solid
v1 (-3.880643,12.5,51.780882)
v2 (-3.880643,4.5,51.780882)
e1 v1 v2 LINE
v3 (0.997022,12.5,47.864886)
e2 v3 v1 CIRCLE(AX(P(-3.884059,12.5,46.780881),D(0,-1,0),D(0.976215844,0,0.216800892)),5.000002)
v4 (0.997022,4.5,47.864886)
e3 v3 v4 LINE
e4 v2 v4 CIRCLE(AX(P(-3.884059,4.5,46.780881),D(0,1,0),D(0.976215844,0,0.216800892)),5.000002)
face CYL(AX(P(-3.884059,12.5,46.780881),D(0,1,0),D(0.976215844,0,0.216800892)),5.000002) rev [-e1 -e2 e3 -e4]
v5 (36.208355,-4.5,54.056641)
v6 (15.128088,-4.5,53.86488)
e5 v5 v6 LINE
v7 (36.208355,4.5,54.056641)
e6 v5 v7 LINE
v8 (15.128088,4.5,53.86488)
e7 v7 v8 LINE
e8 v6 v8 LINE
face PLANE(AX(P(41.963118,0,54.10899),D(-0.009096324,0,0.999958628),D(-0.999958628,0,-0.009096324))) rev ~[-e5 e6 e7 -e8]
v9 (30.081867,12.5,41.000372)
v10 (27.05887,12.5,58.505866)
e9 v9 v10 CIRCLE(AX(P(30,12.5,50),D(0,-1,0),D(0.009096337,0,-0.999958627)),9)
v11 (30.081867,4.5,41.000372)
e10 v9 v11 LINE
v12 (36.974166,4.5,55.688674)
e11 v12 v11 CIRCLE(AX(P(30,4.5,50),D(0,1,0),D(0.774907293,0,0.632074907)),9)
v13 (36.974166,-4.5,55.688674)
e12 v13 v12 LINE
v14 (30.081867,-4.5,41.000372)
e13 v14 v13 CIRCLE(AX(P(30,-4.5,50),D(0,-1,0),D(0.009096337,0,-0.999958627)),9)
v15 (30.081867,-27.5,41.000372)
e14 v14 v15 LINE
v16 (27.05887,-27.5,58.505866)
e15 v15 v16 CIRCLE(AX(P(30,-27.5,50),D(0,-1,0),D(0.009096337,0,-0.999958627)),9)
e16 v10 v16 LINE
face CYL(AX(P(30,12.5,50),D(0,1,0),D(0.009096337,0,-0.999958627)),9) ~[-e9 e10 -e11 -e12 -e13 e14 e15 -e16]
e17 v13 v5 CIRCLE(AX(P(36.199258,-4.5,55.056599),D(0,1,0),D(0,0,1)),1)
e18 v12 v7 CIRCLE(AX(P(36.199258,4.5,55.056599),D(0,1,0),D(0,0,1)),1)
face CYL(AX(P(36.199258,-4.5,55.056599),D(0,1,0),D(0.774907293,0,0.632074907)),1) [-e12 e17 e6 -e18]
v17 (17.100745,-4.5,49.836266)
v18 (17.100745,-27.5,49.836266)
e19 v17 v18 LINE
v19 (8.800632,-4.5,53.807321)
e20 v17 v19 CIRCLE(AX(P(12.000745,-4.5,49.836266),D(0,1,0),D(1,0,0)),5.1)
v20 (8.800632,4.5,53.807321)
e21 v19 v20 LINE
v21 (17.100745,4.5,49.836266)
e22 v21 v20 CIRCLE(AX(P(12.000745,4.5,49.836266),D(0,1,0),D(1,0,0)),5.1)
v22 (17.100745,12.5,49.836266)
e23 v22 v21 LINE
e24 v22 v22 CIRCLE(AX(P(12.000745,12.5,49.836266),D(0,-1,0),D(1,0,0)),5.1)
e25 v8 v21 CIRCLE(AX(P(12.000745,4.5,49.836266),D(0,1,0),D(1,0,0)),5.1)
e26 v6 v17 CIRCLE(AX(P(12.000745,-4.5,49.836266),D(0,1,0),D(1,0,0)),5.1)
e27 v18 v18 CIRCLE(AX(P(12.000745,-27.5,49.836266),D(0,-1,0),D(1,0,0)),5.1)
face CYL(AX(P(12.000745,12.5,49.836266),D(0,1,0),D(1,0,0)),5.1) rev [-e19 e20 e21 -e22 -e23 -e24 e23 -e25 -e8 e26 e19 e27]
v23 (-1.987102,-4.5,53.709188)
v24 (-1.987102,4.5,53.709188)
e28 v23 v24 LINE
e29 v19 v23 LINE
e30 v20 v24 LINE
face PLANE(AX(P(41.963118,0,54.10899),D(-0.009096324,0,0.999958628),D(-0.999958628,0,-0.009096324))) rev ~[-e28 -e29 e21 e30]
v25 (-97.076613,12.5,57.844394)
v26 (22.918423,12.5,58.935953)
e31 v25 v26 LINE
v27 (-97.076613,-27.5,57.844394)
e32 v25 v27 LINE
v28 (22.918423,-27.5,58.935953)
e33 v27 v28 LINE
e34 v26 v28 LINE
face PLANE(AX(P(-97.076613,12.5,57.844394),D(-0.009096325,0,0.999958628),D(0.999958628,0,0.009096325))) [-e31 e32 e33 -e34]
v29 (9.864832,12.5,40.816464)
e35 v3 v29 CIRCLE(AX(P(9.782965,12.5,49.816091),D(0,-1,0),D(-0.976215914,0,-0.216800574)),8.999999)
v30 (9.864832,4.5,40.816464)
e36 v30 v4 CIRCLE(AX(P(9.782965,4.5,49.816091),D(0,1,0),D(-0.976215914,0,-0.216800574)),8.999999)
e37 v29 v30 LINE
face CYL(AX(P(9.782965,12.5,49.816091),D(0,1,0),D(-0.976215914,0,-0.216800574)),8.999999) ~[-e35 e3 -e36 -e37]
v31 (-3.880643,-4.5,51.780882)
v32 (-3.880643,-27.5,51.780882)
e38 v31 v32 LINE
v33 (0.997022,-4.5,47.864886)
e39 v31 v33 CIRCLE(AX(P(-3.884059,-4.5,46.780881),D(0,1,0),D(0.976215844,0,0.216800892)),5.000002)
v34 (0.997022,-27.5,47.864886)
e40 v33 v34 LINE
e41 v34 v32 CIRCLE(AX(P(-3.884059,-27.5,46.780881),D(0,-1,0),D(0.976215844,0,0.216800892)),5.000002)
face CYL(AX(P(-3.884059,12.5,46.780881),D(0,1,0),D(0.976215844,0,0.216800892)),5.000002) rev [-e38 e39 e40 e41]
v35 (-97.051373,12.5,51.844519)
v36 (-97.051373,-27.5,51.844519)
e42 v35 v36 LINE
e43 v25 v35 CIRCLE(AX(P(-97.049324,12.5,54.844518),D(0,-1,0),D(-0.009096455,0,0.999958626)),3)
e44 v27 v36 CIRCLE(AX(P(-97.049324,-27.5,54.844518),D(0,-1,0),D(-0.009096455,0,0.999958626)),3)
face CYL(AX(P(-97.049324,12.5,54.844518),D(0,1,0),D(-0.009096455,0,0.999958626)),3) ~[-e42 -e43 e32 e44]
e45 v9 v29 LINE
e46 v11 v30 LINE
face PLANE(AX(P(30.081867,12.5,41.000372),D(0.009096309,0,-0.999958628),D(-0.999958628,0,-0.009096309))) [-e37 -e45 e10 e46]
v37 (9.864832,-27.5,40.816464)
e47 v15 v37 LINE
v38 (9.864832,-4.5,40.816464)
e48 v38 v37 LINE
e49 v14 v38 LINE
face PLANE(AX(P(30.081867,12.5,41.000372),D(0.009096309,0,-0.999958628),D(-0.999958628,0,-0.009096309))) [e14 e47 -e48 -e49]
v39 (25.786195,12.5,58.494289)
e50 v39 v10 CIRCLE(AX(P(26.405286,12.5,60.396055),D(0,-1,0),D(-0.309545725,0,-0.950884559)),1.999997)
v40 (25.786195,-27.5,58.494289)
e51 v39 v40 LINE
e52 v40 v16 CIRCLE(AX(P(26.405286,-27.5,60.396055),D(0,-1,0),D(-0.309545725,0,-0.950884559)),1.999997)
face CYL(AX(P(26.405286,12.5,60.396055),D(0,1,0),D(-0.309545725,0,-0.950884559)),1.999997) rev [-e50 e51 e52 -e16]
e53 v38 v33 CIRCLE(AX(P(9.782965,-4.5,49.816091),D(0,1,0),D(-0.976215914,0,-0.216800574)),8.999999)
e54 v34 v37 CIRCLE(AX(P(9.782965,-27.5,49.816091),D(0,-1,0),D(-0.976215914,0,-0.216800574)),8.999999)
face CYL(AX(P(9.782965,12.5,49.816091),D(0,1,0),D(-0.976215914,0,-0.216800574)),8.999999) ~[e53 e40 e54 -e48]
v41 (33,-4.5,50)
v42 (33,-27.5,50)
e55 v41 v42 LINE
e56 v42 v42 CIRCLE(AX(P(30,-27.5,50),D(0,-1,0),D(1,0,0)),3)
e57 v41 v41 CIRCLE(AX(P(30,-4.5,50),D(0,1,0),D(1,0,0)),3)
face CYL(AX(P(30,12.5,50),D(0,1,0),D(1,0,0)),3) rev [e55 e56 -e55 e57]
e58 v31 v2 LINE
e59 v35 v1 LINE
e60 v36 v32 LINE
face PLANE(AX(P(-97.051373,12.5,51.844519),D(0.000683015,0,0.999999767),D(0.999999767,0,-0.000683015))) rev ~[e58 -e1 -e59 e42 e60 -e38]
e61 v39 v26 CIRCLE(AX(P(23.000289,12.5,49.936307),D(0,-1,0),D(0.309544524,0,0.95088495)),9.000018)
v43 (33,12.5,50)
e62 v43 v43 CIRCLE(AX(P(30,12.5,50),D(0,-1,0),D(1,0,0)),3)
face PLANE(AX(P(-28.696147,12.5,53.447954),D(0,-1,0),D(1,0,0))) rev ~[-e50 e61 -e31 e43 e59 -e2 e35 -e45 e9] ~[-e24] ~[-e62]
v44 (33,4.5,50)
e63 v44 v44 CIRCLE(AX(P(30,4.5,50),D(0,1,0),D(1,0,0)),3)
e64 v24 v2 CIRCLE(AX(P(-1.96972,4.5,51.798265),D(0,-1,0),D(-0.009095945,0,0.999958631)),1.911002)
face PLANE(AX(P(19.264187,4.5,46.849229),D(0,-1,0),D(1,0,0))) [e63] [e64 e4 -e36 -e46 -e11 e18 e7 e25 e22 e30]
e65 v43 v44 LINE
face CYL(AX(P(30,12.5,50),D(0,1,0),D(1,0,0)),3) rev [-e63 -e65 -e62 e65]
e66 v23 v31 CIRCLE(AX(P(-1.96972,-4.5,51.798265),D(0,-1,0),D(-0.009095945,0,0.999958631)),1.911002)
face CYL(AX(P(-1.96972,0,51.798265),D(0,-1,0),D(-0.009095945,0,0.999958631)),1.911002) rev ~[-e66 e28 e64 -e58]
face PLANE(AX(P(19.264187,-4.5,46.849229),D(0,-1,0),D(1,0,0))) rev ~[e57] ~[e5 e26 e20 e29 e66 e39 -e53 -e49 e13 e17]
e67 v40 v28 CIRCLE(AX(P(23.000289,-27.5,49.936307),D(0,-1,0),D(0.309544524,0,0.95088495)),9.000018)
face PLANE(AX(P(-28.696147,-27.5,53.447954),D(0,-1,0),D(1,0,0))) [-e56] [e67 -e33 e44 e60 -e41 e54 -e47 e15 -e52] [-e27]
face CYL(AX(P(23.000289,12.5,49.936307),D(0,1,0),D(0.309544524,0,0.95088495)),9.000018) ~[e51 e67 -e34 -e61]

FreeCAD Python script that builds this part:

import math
import FreeCAD as App
import Part
import Sketcher
from FreeCAD import Vector
Q = App.Units.Quantity


def edges_at(feature, points):
    """Names of the edges that pass closest to the given points."""
    edges = feature.Shape.Edges
    near = lambda p: min(range(len(edges)), key=lambda i: edges[i].distToShape(Part.Vertex(*p))[0])
    return sorted({f"Edge{near(p) + 1}" for p in points})

doc = App.newDocument("Part")
params = doc.addObject("Spreadsheet::Sheet", "Params")
for row, (alias, value) in enumerate([
    ("sketch1_diameter", "6 mm"),
    ("sketch1_radius", "9 mm"),
    ("sketch1_diameter2", "10.2 mm"),
    ("sketch1_length", "120.000001 mm"),
    ("pad1_length", "40 mm"),
    ("sketch2_length", "13.999999 mm"),
    ("pocket1_length", "9 mm"),
    ("fillet_radius", "1 mm"),
], start=1):
    params.set(f"A{row}", alias)
    params.set(f"B{row}", "=" + value)
    params.setAlias(f"B{row}", alias)

body = doc.addObject("PartDesign::Body", "Body")

# Sketch on XZ plane
sketch1 = body.newObject("Sketcher::SketchObject", "Sketch")
sketch1.AttachmentSupport = (doc.getObject("XZ_Plane"), [""])
sketch1.MapMode = "FlatFace"
sketch1.AttachmentOffset = App.Placement(Vector(0, 0, -12.5), App.Rotation())
sketch1.addGeometry([
    Part.ArcOfCircle(Part.Circle(Vector(30, 50, 0), Vector(0, 0, 1), 9), math.radians(-89), math.radians(109)),  # 0
    Part.ArcOfCircle(Part.Circle(Vector(26.4, 60.4, 0), Vector(0, 0, 1), 2), math.radians(-108), math.radians(-71)),  # 1
    Part.ArcOfCircle(Part.Circle(Vector(23, 49.9, 0), Vector(0, 0, 1), 9), math.radians(71.97), math.radians(90.52)),  # 2
    Part.LineSegment(Vector(22.9, 58.9, 0), Vector(-97.1, 57.8, 0)),  # 3
    Part.ArcOfCircle(Part.Circle(Vector(-97, 54.8, 0), Vector(0, 0, 1), 3), math.radians(91), math.radians(270)),  # 4
    Part.LineSegment(Vector(-97.1, 51.8, 0), Vector(-3.9, 51.8, 0)),  # 5
    Part.ArcOfCircle(Part.Circle(Vector(-3.9, 46.8, 0), Vector(0, 0, 1), 5), math.radians(13), math.radians(90)),  # 6
    Part.ArcOfCircle(Part.Circle(Vector(9.8, 49.8, 0), Vector(0, 0, 1), 9), math.radians(-167), math.radians(-89)),  # 7
    Part.LineSegment(Vector(9.9, 40.8, 0), Vector(30.1, 41, 0)),  # 8
    Part.Circle(Vector(12, 49.8, 0), Vector(0, 0, 1), 5.1),  # 9
    Part.Circle(Vector(30, 50, 0), Vector(0, 0, 1), 3),  # 10
], False)
sketch1.addConstraint([
    Sketcher.Constraint("Tangent", 0, 2, 1, 2),
    Sketcher.Constraint("Tangent", 1, 1, 2, 1),
    Sketcher.Constraint("Tangent", 2, 2, 3, 1),
    Sketcher.Constraint("Tangent", 3, 2, 4, 1),
    Sketcher.Constraint("Tangent", 4, 2, 5, 1),
    Sketcher.Constraint("Tangent", 5, 2, 6, 2),
    Sketcher.Constraint("Tangent", 6, 1, 7, 1),
    Sketcher.Constraint("Tangent", 7, 2, 8, 1),
    Sketcher.Constraint("Tangent", 8, 2, 0, 1),
    Sketcher.Constraint("Coincident", 10, 3, 0, 3),
    Sketcher.Constraint("Equal", 0, 7),
    Sketcher.Constraint("Equal", 4, 10),
    Sketcher.Constraint("Parallel", 3, 8),
    Sketcher.Constraint("Diameter", 10, Q("6 mm")),
    Sketcher.Constraint("Radius", 0, Q("9 mm")),
    Sketcher.Constraint("Diameter", 9, Q("10.2 mm")),
    Sketcher.Constraint("Distance", 3, Q("120.000001 mm")),
    Sketcher.Constraint("DistanceX", -1, 1, 0, 3, Q("30 mm")),
    Sketcher.Constraint("DistanceY", -1, 1, 0, 3, Q("50 mm")),
    Sketcher.Constraint("DistanceY", 6, 3, 5, 2, Q("5.000001 mm")),
    Sketcher.Constraint("Radius", 2, Q("9.000018 mm")),
    Sketcher.Constraint("Radius", 1, Q("1.999997 mm")),
    Sketcher.Constraint("DistanceY", 9, 3, 0, 2, Q("8.6696 mm")),
    Sketcher.Constraint("DistanceY", 7, 2, 9, 3, Q("9.019802 mm")),
    Sketcher.Constraint("Distance", 5, Q("93.170752 mm")),
    Sketcher.Constraint("Distance", 8, Q("20.217871 mm")),
    Sketcher.Constraint("DistanceX", -1, 1, 2, 3, Q("23.000289 mm")),
    Sketcher.Constraint("DistanceY", -1, 1, 4, 3, Q("54.844518 mm")),
    Sketcher.Constraint("DistanceX", 7, 3, 9, 3, Q("2.21778 mm")),
])
sketch1.setExpression("Constraints[13]", "Params.sketch1_diameter")
sketch1.setExpression("Constraints[14]", "Params.sketch1_radius")
sketch1.setExpression("Constraints[15]", "Params.sketch1_diameter2")
sketch1.setExpression("Constraints[16]", "Params.sketch1_length")
pad1 = body.newObject("PartDesign::Pad", "Pad")
pad1.Profile = sketch1
pad1.setExpression("Length", "Params.pad1_length")

# Sketch on XZ plane
sketch2 = body.newObject("Sketcher::SketchObject", "Sketch001")
sketch2.AttachmentSupport = (doc.getObject("XZ_Plane"), [""])
sketch2.MapMode = "FlatFace"
sketch2.addGeometry([
    Part.LineSegment(Vector(-3.770677, 39.692385, 0), Vector(42.090467, 40.10957, 0)),  # 0
    Part.LineSegment(Vector(42.090467, 40.10957, 0), Vector(41.963118, 54.10899, 0)),  # 1
    Part.LineSegment(Vector(41.963118, 54.10899, 0), Vector(-1.987102, 53.709188, 0)),  # 2
    Part.ArcOfCircle(Part.Circle(Vector(-1.96972, 51.798265, 0), Vector(0, 0, 1), 1.911002), math.radians(90.521166), math.radians(180.521174)),  # 3
    Part.LineSegment(Vector(-3.880643, 51.780882, 0), Vector(-3.770677, 39.692385, 0)),  # 4
], False)
sketch2.addConstraint([
    Sketcher.Constraint("Coincident", 0, 2, 1, 1),
    Sketcher.Constraint("Coincident", 1, 2, 2, 1),
    Sketcher.Constraint("Tangent", 2, 2, 3, 1),
    Sketcher.Constraint("Tangent", 3, 2, 4, 1),
    Sketcher.Constraint("Coincident", 4, 2, 0, 1),
    Sketcher.Constraint("Perpendicular", 0, 1),
    Sketcher.Constraint("Perpendicular", 1, 2),
    Sketcher.Constraint("Perpendicular", 2, 4),
    Sketcher.Constraint("Distance", 1, Q("13.999999 mm")),
    Sketcher.Constraint("Radius", 3, Q("1.911002 mm")),
    Sketcher.Constraint("DistanceX", 2, 2, -1, 1, Q("1.987102 mm")),
    Sketcher.Constraint("Distance", 0, Q("45.863041 mm")),
    Sketcher.Constraint("DistanceX", 3, 3, -1, 1, Q("1.96972 mm")),
    Sketcher.Constraint("DistanceY", -1, 1, 0, 2, Q("40.10957 mm")),
])
sketch2.setExpression("Constraints[8]", "Params.sketch2_length")
pocket1 = body.newObject("PartDesign::Pocket", "Pocket")
pocket1.Profile = sketch2
pocket1.setExpression("Length", "Params.pocket1_length")
pocket1.Midplane = True
doc.recompute()

fillet = body.newObject("PartDesign::Fillet", "Fillet")
fillet.Base = (pocket1, edges_at(pocket1, [(38.026, 0, 54.073)]))
fillet.setExpression("Radius", "Params.fillet_radius")

doc.recompute()
